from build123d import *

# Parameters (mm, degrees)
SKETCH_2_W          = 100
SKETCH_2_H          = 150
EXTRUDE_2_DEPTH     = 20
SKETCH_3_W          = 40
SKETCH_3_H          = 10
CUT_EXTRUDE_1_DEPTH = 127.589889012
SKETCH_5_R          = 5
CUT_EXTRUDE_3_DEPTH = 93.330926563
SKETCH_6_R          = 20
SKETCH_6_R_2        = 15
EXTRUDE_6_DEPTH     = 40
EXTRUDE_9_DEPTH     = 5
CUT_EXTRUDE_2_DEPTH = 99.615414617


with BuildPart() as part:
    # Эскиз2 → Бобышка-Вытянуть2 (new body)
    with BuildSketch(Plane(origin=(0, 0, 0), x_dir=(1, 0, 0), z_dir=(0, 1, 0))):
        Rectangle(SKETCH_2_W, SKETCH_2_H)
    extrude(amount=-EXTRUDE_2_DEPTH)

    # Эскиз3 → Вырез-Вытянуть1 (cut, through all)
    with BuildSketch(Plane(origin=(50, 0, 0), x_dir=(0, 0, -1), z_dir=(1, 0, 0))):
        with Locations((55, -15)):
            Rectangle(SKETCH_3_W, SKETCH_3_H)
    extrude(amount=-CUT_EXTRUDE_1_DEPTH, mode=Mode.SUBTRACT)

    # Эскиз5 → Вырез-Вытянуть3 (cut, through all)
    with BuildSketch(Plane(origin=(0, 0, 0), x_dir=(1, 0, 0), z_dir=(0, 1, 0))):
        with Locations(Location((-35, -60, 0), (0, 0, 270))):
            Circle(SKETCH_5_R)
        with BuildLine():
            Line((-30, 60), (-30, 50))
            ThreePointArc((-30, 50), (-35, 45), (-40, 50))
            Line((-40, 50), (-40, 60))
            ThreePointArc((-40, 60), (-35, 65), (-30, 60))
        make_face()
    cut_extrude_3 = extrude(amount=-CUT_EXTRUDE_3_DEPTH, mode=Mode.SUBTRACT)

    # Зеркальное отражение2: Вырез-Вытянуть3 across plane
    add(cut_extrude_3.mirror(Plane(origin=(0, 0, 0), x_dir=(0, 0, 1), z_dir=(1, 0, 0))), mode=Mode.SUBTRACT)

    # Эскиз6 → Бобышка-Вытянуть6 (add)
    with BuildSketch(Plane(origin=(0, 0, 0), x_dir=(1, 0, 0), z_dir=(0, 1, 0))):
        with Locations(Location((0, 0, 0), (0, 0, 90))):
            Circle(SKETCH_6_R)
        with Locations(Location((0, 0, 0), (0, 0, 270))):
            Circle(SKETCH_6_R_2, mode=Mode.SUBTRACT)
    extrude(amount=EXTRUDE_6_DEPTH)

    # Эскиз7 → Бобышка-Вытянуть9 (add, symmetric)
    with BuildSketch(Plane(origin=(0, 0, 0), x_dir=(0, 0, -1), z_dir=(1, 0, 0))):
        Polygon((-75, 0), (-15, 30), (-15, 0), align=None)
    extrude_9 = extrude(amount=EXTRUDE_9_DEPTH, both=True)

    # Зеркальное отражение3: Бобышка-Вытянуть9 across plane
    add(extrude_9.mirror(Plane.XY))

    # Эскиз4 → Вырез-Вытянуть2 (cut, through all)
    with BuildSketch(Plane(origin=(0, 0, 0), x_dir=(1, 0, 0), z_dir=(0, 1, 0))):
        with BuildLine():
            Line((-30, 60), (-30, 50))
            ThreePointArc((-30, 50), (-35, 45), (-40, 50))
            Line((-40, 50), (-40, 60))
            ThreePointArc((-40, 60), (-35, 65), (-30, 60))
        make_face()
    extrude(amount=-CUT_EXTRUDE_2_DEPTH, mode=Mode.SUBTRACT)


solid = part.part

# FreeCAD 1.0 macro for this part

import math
import FreeCAD as App
import Part
import Sketcher
Q = App.Units.Quantity

doc = App.newDocument("Part")
body = doc.addObject("PartDesign::Body", "Body")

# Sketch on XZ plane
sketch1 = body.newObject("Sketcher::SketchObject", "Sketch")
sketch1.AttachmentSupport = (doc.getObject("XZ_Plane"), [""])
sketch1.MapMode = "FlatFace"
sketch1.addGeometry([
    Part.LineSegment(App.Vector(-50, -75, 0), App.Vector(-50, 75, 0)),
    Part.LineSegment(App.Vector(-50, 75, 0), App.Vector(50, 75, 0)),
    Part.LineSegment(App.Vector(50, 75, 0), App.Vector(50, -75, 0)),
    Part.LineSegment(App.Vector(50, -75, 0), App.Vector(-50, -75, 0)),
], False)
sketch1.addConstraint([
    Sketcher.Constraint("Coincident", 0, 2, 1, 1),
    Sketcher.Constraint("Coincident", 1, 2, 2, 1),
    Sketcher.Constraint("Coincident", 2, 2, 3, 1),
    Sketcher.Constraint("Coincident", 3, 2, 0, 1),
    Sketcher.Constraint("Vertical", 0),
    Sketcher.Constraint("Horizontal", 1),
    Sketcher.Constraint("Vertical", 2),
    Sketcher.Constraint("Horizontal", 3),
    Sketcher.Constraint("Symmetric", 0, 2, 2, 2, -1, 1),
    Sketcher.Constraint("DistanceX", 1, 1, 1, 2, Q("100 mm")),
    Sketcher.Constraint("DistanceY", 0, 1, 0, 2, Q("150 mm")),
])
pad1 = body.newObject("PartDesign::Pad", "Pad")
pad1.Profile = sketch1
pad1.Length = 20

# Sketch on YZ plane
sketch2 = body.newObject("Sketcher::SketchObject", "Sketch001")
sketch2.AttachmentSupport = (doc.getObject("YZ_Plane"), [""])
sketch2.MapMode = "FlatFace"
sketch2.AttachmentOffset = App.Placement(App.Vector(0, 0, 50), App.Rotation())
sketch2.addGeometry([
    Part.LineSegment(App.Vector(-10, -35, 0), App.Vector(-20, -35, 0)),
    Part.LineSegment(App.Vector(-20, -35, 0), App.Vector(-20, -75, 0)),
    Part.LineSegment(App.Vector(-20, -75, 0), App.Vector(-10, -75, 0)),
    Part.LineSegment(App.Vector(-10, -75, 0), App.Vector(-10, -35, 0)),
], False)
sketch2.addConstraint([
    Sketcher.Constraint("Coincident", 0, 2, 1, 1),
    Sketcher.Constraint("Coincident", 1, 2, 2, 1),
    Sketcher.Constraint("Coincident", 2, 2, 3, 1),
    Sketcher.Constraint("Coincident", 3, 2, 0, 1),
    Sketcher.Constraint("Horizontal", 0),
    Sketcher.Constraint("Vertical", 1),
    Sketcher.Constraint("Horizontal", 2),
    Sketcher.Constraint("Vertical", 3),
    Sketcher.Constraint("DistanceX", 0, 2, 0, 1, Q("10 mm")),
    Sketcher.Constraint("DistanceY", 1, 2, 1, 1, Q("40 mm")),
    Sketcher.Constraint("DistanceX", 0, 2, -1, 1, Q("20 mm")),
    Sketcher.Constraint("DistanceY", 0, 2, -1, 1, Q("35 mm")),
])
pocket1 = body.newObject("PartDesign::Pocket", "Pocket")
pocket1.Profile = sketch2
pocket1.Type = "ThroughAll"

# Sketch on XZ plane
sketch3 = body.newObject("Sketcher::SketchObject", "Sketch002")
sketch3.AttachmentSupport = (doc.getObject("XZ_Plane"), [""])
sketch3.MapMode = "FlatFace"
sketch3.addGeometry([
    Part.Circle(App.Vector(-35, 60, 0), App.Vector(0, 0, 1), 5),  # 0
    Part.LineSegment(App.Vector(-30, -50, 0), App.Vector(-30, -60, 0)),  # 1
    Part.ArcOfCircle(Part.Circle(App.Vector(-35, -60, 0), App.Vector(0, 0, 1), 5), math.radians(180), math.radians(360)),  # 2
    Part.LineSegment(App.Vector(-40, -60, 0), App.Vector(-40, -50, 0)),  # 3
    Part.ArcOfCircle(Part.Circle(App.Vector(-35, -50, 0), App.Vector(0, 0, 1), 5), math.radians(0), math.radians(180)),  # 4
], False)
sketch3.addConstraint([
    Sketcher.Constraint("Tangent", 1, 2, 2, 2),
    Sketcher.Constraint("Tangent", 2, 1, 3, 1),
    Sketcher.Constraint("Tangent", 3, 2, 4, 2),
    Sketcher.Constraint("Tangent", 4, 1, 1, 1),
    Sketcher.Constraint("Vertical", 1),
    Sketcher.Constraint("Vertical", 3),
    Sketcher.Constraint("Equal", 0, 2),
    Sketcher.Constraint("Symmetric", 0, 3, 2, 3, -1),
    Sketcher.Constraint("Diameter", 0, Q("10 mm")),
    Sketcher.Constraint("DistanceY", 1, 2, 1, 1, Q("10 mm")),
    Sketcher.Constraint("DistanceX", 0, 3, -1, 1, Q("35 mm")),
    Sketcher.Constraint("DistanceY", -1, 1, 0, 3, Q("60 mm")),
])
pocket2 = body.newObject("PartDesign::Pocket", "Pocket001")
pocket2.Profile = sketch3
pocket2.Type = "ThroughAll"
pocket2.Reversed = True
doc.recompute()

mirrored = body.newObject("PartDesign::Mirrored", "Mirrored")
mirrored.Originals = [pocket2]
mirrored.MirrorPlane = (doc.getObject("YZ_Plane"), [""])
body.Tip = mirrored

# Sketch on XZ plane
sketch4 = body.newObject("Sketcher::SketchObject", "Sketch003")
sketch4.AttachmentSupport = (doc.getObject("XZ_Plane"), [""])
sketch4.MapMode = "FlatFace"
sketch4.addGeometry([
    Part.Circle(App.Vector(0, 0, 0), App.Vector(0, 0, 1), 20),
    Part.Circle(App.Vector(0, 0, 0), App.Vector(0, 0, 1), 15),
], False)
sketch4.addConstraint([
    Sketcher.Constraint("Coincident", 0, 3, -1, 1),
    Sketcher.Constraint("Coincident", 1, 3, -1, 1),
    Sketcher.Constraint("Diameter", 0, Q("40 mm")),
    Sketcher.Constraint("Diameter", 1, Q("30 mm")),
])
pad2 = body.newObject("PartDesign::Pad", "Pad001")
pad2.Profile = sketch4
pad2.Length = 40
pad2.Reversed = True

# Sketch on YZ plane
sketch5 = body.newObject("Sketcher::SketchObject", "Sketch004")
sketch5.AttachmentSupport = (doc.getObject("YZ_Plane"), [""])
sketch5.MapMode = "FlatFace"
sketch5.addGeometry([
    Part.LineSegment(App.Vector(30, 15, 0), App.Vector(0, 75, 0)),
    Part.LineSegment(App.Vector(0, 75, 0), App.Vector(0, 15, 0)),
    Part.LineSegment(App.Vector(0, 15, 0), App.Vector(30, 15, 0)),
], False)
sketch5.addConstraint([
    Sketcher.Constraint("Coincident", 0, 2, 1, 1),
    Sketcher.Constraint("Coincident", 1, 2, 2, 1),
    Sketcher.Constraint("Coincident", 2, 2, 0, 1),
    Sketcher.Constraint("Vertical", 1),
    Sketcher.Constraint("Horizontal", 2),
    Sketcher.Constraint("PointOnObject", 0, 2, -2),
    Sketcher.Constraint("DistanceX", 2, 1, 2, 2, Q("30 mm")),
    Sketcher.Constraint("DistanceY", 1, 2, 1, 1, Q("60 mm")),
    Sketcher.Constraint("DistanceY", -1, 1, 0, 2, Q("75 mm")),
])
pad3 = body.newObject("PartDesign::Pad", "Pad002")
pad3.Profile = sketch5
pad3.Length = 10
pad3.Midplane = True
doc.recompute()

mirrored2 = body.newObject("PartDesign::Mirrored", "Mirrored001")
mirrored2.Originals = [pad3]
mirrored2.MirrorPlane = (doc.getObject("XY_Plane"), [""])
body.Tip = mirrored2

# Sketch on XZ plane
sketch6 = body.newObject("Sketcher::SketchObject", "Sketch005")
sketch6.AttachmentSupport = (doc.getObject("XZ_Plane"), [""])
sketch6.MapMode = "FlatFace"
sketch6.addGeometry([
    Part.LineSegment(App.Vector(-30, -50, 0), App.Vector(-30, -60, 0)),
    Part.ArcOfCircle(Part.Circle(App.Vector(-35, -60, 0), App.Vector(0, 0, 1), 5), math.radians(180), math.radians(360)),
    Part.LineSegment(App.Vector(-40, -60, 0), App.Vector(-40, -50, 0)),
    Part.ArcOfCircle(Part.Circle(App.Vector(-35, -50, 0), App.Vector(0, 0, 1), 5), math.radians(0), math.radians(180)),
], False)
sketch6.addConstraint([
    Sketcher.Constraint("Tangent", 0, 2, 1, 2),
    Sketcher.Constraint("Tangent", 1, 1, 2, 1),
    Sketcher.Constraint("Tangent", 2, 2, 3, 2),
    Sketcher.Constraint("Tangent", 3, 1, 0, 1),
    Sketcher.Constraint("Vertical", 0),
    Sketcher.Constraint("Vertical", 2),
    Sketcher.Constraint("Radius", 1, Q("5 mm")),
    Sketcher.Constraint("DistanceY", 0, 2, 0, 1, Q("10 mm")),
    Sketcher.Constraint("DistanceX", 1, 3, -1, 1, Q("35 mm")),
    Sketcher.Constraint("DistanceY", 1, 3, -1, 1, Q("60 mm")),
])
pocket3 = body.newObject("PartDesign::Pocket", "Pocket002")
pocket3.Profile = sketch6
pocket3.Type = "ThroughAll"
pocket3.Reversed = True

doc.recompute()
